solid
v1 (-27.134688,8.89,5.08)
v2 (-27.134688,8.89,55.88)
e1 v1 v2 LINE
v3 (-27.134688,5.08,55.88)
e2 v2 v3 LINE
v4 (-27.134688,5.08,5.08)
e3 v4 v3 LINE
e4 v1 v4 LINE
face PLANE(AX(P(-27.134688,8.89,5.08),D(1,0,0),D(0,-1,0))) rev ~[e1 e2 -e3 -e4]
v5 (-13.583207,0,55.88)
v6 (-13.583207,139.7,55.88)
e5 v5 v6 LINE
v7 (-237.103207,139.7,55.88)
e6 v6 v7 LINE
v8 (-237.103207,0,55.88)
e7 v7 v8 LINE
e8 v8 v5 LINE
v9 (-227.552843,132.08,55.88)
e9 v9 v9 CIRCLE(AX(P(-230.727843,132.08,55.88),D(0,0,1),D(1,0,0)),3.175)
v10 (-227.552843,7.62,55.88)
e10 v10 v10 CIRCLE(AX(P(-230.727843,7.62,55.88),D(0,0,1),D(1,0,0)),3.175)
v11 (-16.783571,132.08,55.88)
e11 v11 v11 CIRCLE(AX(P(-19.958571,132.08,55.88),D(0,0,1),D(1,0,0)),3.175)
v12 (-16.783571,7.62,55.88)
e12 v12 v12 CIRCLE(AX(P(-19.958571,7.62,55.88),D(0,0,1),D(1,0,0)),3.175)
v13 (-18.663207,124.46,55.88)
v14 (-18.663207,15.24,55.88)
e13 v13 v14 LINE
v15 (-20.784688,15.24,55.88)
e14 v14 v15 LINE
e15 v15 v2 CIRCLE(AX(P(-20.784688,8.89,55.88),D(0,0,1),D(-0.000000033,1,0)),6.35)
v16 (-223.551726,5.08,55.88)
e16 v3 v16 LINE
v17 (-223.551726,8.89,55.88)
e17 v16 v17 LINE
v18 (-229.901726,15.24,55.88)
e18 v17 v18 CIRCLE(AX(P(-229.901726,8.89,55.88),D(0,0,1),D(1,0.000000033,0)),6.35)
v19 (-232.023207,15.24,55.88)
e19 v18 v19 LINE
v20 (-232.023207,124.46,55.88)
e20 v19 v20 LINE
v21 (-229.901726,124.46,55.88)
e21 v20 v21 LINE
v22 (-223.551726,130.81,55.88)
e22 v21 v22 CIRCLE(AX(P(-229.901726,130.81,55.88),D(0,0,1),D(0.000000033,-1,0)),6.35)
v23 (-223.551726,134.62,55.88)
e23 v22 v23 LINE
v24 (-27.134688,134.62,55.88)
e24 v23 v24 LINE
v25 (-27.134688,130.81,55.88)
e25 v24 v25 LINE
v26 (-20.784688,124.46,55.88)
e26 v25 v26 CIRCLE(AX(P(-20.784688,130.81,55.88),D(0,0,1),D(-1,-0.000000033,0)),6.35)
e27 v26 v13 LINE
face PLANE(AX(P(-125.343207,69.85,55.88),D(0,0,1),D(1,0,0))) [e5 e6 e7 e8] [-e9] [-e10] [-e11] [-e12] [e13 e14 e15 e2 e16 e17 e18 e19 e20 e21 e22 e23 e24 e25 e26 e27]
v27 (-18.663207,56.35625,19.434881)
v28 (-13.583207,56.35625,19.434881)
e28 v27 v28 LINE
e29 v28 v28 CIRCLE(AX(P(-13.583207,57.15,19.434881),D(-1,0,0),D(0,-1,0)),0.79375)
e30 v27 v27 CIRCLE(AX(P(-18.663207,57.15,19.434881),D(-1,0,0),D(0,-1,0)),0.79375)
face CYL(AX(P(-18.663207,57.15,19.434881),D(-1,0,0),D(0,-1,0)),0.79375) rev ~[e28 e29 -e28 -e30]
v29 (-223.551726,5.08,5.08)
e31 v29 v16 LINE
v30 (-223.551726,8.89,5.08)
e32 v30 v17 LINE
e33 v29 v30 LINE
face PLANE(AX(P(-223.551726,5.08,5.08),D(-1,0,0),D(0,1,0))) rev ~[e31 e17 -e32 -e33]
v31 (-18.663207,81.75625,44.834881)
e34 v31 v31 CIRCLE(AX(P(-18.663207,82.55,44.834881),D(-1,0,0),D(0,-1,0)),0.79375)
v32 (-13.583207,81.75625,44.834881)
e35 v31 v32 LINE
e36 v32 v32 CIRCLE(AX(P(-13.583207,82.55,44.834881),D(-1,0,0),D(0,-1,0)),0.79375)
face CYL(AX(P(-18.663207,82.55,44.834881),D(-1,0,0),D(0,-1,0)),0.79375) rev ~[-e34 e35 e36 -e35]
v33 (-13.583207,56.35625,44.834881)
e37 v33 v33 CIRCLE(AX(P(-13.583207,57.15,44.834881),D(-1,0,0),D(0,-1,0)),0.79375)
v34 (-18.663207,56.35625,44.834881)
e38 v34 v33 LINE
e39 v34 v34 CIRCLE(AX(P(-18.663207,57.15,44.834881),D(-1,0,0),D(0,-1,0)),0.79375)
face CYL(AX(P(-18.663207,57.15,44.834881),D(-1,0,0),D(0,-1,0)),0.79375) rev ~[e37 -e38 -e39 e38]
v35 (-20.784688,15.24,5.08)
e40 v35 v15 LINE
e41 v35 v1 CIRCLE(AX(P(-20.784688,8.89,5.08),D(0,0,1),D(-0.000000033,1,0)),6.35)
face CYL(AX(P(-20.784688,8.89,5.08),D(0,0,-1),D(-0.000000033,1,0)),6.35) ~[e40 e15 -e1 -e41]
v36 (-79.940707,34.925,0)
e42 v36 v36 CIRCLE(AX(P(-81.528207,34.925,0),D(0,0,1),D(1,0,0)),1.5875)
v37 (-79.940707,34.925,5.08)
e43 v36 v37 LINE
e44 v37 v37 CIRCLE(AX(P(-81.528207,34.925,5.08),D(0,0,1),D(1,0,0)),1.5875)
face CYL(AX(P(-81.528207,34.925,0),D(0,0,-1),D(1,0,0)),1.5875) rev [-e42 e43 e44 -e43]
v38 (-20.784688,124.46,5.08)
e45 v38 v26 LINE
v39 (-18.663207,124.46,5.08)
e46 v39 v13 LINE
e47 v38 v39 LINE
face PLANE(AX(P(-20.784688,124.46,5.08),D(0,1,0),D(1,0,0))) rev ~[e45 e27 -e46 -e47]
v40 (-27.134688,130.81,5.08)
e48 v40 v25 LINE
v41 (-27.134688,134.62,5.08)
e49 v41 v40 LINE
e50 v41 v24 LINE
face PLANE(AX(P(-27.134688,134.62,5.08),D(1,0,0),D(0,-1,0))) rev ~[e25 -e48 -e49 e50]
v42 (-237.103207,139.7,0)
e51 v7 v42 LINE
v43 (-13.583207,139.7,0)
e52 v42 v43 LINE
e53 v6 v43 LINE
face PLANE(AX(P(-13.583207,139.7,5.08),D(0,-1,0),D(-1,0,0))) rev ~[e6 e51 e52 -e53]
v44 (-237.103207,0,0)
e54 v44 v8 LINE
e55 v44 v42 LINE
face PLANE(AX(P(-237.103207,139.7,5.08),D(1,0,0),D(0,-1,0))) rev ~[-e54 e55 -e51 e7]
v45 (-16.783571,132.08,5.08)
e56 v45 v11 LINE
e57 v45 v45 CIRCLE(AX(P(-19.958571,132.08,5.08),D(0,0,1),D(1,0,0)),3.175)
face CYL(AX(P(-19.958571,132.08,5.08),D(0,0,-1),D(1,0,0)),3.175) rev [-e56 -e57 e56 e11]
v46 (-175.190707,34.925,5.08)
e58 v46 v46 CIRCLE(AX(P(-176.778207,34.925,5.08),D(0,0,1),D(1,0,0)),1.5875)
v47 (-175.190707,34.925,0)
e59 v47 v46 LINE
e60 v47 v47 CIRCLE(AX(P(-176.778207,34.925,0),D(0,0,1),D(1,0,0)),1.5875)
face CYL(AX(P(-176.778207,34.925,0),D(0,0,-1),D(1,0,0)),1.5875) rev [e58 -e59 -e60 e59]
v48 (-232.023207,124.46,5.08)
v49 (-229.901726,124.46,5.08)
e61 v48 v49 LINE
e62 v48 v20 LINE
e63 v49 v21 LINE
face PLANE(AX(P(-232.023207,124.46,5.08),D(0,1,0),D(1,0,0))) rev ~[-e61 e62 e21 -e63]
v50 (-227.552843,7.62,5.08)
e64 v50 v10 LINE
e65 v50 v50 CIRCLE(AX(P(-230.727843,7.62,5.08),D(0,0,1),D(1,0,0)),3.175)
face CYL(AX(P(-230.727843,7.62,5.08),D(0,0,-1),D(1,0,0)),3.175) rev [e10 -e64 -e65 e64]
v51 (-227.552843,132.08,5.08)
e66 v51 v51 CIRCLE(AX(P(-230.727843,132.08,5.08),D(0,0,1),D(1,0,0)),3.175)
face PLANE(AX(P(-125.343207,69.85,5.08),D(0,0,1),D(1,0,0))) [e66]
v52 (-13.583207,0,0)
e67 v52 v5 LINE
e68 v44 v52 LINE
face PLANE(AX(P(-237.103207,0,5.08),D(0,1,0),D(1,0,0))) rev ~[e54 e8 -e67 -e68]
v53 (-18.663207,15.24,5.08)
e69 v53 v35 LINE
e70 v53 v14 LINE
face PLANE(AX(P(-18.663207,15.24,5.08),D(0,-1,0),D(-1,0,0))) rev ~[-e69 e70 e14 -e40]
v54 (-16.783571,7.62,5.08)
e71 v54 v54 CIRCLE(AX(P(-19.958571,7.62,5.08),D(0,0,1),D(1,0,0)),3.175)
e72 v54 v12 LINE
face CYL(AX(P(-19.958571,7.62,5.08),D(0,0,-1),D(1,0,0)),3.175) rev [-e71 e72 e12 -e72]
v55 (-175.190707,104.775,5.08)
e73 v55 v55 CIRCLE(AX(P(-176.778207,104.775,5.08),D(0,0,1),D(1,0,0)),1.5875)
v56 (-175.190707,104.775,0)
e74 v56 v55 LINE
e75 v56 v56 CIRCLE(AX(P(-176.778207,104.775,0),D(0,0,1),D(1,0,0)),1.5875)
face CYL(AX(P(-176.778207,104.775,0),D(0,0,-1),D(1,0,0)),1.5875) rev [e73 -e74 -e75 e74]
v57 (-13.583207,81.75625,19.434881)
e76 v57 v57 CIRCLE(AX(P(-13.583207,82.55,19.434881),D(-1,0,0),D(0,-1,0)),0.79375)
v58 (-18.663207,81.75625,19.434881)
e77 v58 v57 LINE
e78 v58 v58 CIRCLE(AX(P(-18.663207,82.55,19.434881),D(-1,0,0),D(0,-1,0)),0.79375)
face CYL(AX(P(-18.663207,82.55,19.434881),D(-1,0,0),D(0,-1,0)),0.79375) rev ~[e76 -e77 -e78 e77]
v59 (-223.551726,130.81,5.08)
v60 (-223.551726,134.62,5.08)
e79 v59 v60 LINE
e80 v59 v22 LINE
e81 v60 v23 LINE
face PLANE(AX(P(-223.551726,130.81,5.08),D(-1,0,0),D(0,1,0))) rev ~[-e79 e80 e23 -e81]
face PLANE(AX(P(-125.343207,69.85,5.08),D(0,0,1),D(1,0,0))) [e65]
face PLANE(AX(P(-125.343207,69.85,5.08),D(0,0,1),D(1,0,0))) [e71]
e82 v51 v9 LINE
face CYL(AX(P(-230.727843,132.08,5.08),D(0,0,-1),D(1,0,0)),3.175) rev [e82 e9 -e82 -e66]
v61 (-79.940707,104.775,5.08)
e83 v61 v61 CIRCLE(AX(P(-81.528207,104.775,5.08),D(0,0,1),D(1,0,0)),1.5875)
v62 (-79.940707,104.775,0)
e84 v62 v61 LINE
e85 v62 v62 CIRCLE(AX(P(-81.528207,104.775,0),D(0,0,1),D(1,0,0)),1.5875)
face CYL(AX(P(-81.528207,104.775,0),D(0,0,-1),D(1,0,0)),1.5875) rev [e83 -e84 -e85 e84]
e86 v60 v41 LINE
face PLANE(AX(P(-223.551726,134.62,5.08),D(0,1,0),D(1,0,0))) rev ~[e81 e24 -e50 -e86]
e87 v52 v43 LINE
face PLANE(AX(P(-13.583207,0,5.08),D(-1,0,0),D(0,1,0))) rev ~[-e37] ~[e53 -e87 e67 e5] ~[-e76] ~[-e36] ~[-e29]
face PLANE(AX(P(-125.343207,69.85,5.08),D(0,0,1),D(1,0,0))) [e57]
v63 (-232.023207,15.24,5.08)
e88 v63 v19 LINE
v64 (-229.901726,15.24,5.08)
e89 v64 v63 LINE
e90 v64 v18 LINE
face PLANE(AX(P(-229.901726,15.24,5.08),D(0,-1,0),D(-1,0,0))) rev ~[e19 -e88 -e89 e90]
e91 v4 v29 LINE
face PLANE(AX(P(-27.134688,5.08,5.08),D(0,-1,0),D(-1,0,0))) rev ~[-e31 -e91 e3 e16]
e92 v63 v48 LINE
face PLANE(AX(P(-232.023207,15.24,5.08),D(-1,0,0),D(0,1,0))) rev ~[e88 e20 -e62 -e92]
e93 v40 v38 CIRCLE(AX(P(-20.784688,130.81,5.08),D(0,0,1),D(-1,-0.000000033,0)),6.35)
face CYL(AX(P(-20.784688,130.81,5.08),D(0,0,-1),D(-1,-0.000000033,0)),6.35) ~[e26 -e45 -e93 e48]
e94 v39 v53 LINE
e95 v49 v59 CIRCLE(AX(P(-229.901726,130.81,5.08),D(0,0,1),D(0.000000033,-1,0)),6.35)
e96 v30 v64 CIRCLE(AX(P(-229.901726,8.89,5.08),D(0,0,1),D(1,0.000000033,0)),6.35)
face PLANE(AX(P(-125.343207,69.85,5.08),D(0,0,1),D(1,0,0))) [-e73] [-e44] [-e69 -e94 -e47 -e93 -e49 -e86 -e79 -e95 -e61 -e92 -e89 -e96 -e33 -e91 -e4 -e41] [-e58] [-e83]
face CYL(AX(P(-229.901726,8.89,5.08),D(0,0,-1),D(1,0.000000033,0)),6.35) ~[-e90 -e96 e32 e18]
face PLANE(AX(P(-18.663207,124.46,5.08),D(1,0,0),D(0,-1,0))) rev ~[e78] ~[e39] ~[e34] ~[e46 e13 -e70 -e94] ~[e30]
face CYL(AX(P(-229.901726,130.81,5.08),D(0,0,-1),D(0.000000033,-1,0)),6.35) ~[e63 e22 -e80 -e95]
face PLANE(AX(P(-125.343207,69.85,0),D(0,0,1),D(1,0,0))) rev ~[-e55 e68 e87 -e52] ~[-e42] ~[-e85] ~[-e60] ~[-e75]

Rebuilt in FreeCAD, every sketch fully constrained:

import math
import FreeCAD as App
import Part
import Sketcher
Q = App.Units.Quantity


def add_polygon(sketch, points):
    """Adds a closed chain of lines whose ends are joined by coincident constraints."""
    first, n = sketch.GeometryCount, len(points)
    for a, b in zip(points, points[1:] + points[:1]):
        sketch.addGeometry(Part.LineSegment(App.Vector(*a, 0), App.Vector(*b, 0)), False)
    for i in range(n):
        sketch.addConstraint(Sketcher.Constraint("Coincident", first + i, 2, first + (i + 1) % n, 1))

doc = App.newDocument("Part")
body = doc.addObject("PartDesign::Body", "Body")

sketch1 = body.newObject("Sketcher::SketchObject", "Sketch")
sketch1.AttachmentSupport = (doc.getObject("XY_Plane"), [""])
sketch1.MapMode = "FlatFace"
add_polygon(sketch1, [(-237.103207, 139.7), (-237.103207, 0), (-13.583207, 0), (-13.583207, 139.7)])
sketch1.addGeometry(Part.Circle(App.Vector(-176.778207, 34.925, 0), App.Vector(0, 0, 1), 1.5875), False)
sketch1.addGeometry(Part.Circle(App.Vector(-81.528207, 34.925, 0), App.Vector(0, 0, 1), 1.5875), False)
sketch1.addGeometry(Part.Circle(App.Vector(-176.778207, 104.775, 0), App.Vector(0, 0, 1), 1.5875), False)
sketch1.addGeometry(Part.Circle(App.Vector(-81.528207, 104.775, 0), App.Vector(0, 0, 1), 1.5875), False)
sketch1.addConstraint([
    Sketcher.Constraint("Vertical", 0),
    Sketcher.Constraint("Horizontal", 1),
    Sketcher.Constraint("Vertical", 2),
    Sketcher.Constraint("Horizontal", 3),
    Sketcher.Constraint("Equal", 4, 5),
    Sketcher.Constraint("Equal", 5, 6),
    Sketcher.Constraint("Equal", 6, 7),
    Sketcher.Constraint("PointOnObject", 0, 2, -1),
    Sketcher.Constraint("Horizontal", 4, 3, 5, 3),
    Sketcher.Constraint("Horizontal", 6, 3, 7, 3),
    Sketcher.Constraint("Vertical", 4, 3, 6, 3),
    Sketcher.Constraint("Vertical", 5, 3, 7, 3),
    Sketcher.Constraint("Diameter", 4, Q("0.125 in")),
    Sketcher.Constraint("DistanceX", 1, 1, 1, 2, Q("8.8 in")),
    Sketcher.Constraint("DistanceY", 0, 2, 0, 1, Q("5.5 in")),
    Sketcher.Constraint("DistanceX", 4, 3, 5, 3, Q("3.75 in")),
    Sketcher.Constraint("DistanceY", 4, 3, 6, 3, Q("2.75 in")),
    Sketcher.Constraint("DistanceY", -1, 1, 4, 3, Q("1.375 in")),
    Sketcher.Constraint("DistanceX", 0, 2, 4, 3, Q("2.375 in")),
    Sketcher.Constraint("DistanceX", 4, 3, -1, 1, 176.778207),
])
pad1 = body.newObject("PartDesign::Pad", "Pad")
pad1.Profile = sketch1
pad1.Length = Q("0.2 in")

sketch2 = body.newObject("Sketcher::SketchObject", "Sketch001")
sketch2.AttachmentSupport = (doc.getObject("XY_Plane"), [""])
sketch2.MapMode = "FlatFace"
sketch2.AttachmentOffset = App.Placement(App.Vector(0, 0, 0.2 * 25.4), App.Rotation())
add_polygon(sketch2, [(-237.103207, 139.7), (-237.103207, 0), (-13.583207, 0), (-13.583207, 139.7)])
sketch2.addGeometry(Part.Circle(App.Vector(-230.727843, 7.62, 0), App.Vector(0, 0, 1), 3.175), False)
sketch2.addGeometry(Part.Circle(App.Vector(-19.958571, 7.62, 0), App.Vector(0, 0, 1), 3.175), False)
sketch2.addGeometry(Part.Circle(App.Vector(-230.727843, 132.08, 0), App.Vector(0, 0, 1), 3.175), False)
sketch2.addGeometry(Part.LineSegment(App.Vector(-229.901726, 15.24, 0), App.Vector(-232.023207, 15.24, 0)), False)
sketch2.addGeometry(Part.LineSegment(App.Vector(-232.023207, 15.24, 0), App.Vector(-232.023207, 124.46, 0)), False)
sketch2.addGeometry(Part.LineSegment(App.Vector(-232.023207, 124.46, 0), App.Vector(-229.901726, 124.46, 0)), False)
sketch2.addGeometry(Part.ArcOfCircle(Part.Circle(App.Vector(-229.901726, 130.81, 0), App.Vector(0, 0, 1), 6.35), math.radians(-89.999998), math.radians(-0.000002)), False)
sketch2.addGeometry(Part.LineSegment(App.Vector(-223.551726, 130.81, 0), App.Vector(-223.551726, 134.62, 0)), False)
sketch2.addGeometry(Part.LineSegment(App.Vector(-223.551726, 134.62, 0), App.Vector(-27.134688, 134.62, 0)), False)
sketch2.addGeometry(Part.LineSegment(App.Vector(-27.134688, 134.62, 0), App.Vector(-27.134688, 130.81, 0)), False)
sketch2.addGeometry(Part.ArcOfCircle(Part.Circle(App.Vector(-20.784688, 130.81, 0), App.Vector(0, 0, 1), 6.35), math.radians(-179.999998), math.radians(-90.000002)), False)
sketch2.addGeometry(Part.LineSegment(App.Vector(-20.784688, 124.46, 0), App.Vector(-18.663207, 124.46, 0)), False)
sketch2.addGeometry(Part.LineSegment(App.Vector(-18.663207, 124.46, 0), App.Vector(-18.663207, 15.24, 0)), False)
sketch2.addGeometry(Part.LineSegment(App.Vector(-18.663207, 15.24, 0), App.Vector(-20.784688, 15.24, 0)), False)
sketch2.addGeometry(Part.ArcOfCircle(Part.Circle(App.Vector(-20.784688, 8.89, 0), App.Vector(0, 0, 1), 6.35), math.radians(90.000002), math.radians(179.999998)), False)
sketch2.addGeometry(Part.LineSegment(App.Vector(-27.134688, 8.89, 0), App.Vector(-27.134688, 5.08, 0)), False)
sketch2.addGeometry(Part.LineSegment(App.Vector(-27.134688, 5.08, 0), App.Vector(-223.551726, 5.08, 0)), False)
sketch2.addGeometry(Part.LineSegment(App.Vector(-223.551726, 5.08, 0), App.Vector(-223.551726, 8.89, 0)), False)
sketch2.addGeometry(Part.ArcOfCircle(Part.Circle(App.Vector(-229.901726, 8.89, 0), App.Vector(0, 0, 1), 6.35), math.radians(0.000002), math.radians(89.999998)), False)
sketch2.addGeometry(Part.Circle(App.Vector(-19.958571, 132.08, 0), App.Vector(0, 0, 1), 3.175), False)
sketch2.addConstraint([
    Sketcher.Constraint("Coincident", 7, 2, 8, 1),
    Sketcher.Constraint("Coincident", 8, 2, 9, 1),
    Sketcher.Constraint("Tangent", 9, 2, 10, 1),
    Sketcher.Constraint("Tangent", 10, 2, 11, 1),
    Sketcher.Constraint("Coincident", 11, 2, 12, 1),
    Sketcher.Constraint("Coincident", 12, 2, 13, 1),
    Sketcher.Constraint("Tangent", 13, 2, 14, 1),
    Sketcher.Constraint("Tangent", 14, 2, 15, 1),
    Sketcher.Constraint("Coincident", 15, 2, 16, 1),
    Sketcher.Constraint("Coincident", 16, 2, 17, 1),
    Sketcher.Constraint("Tangent", 17, 2, 18, 1),
    Sketcher.Constraint("Tangent", 18, 2, 19, 1),
    Sketcher.Constraint("Coincident", 19, 2, 20, 1),
    Sketcher.Constraint("Coincident", 20, 2, 21, 1),
    Sketcher.Constraint("Tangent", 21, 2, 22, 1),
    Sketcher.Constraint("Tangent", 22, 2, 7, 1),
    Sketcher.Constraint("Vertical", 0),
    Sketcher.Constraint("Horizontal", 1),
    Sketcher.Constraint("Vertical", 2),
    Sketcher.Constraint("Horizontal", 3),
    Sketcher.Constraint("Horizontal", 7),
    Sketcher.Constraint("Vertical", 8),
    Sketcher.Constraint("Horizontal", 9),
    Sketcher.Constraint("Vertical", 11),
    Sketcher.Constraint("Horizontal", 12),
    Sketcher.Constraint("Vertical", 13),
    Sketcher.Constraint("Horizontal", 15),
    Sketcher.Constraint("Vertical", 16),
    Sketcher.Constraint("Horizontal", 17),
    Sketcher.Constraint("Vertical", 19),
    Sketcher.Constraint("Horizontal", 20),
    Sketcher.Constraint("Vertical", 21),
    Sketcher.Constraint("Equal", 4, 5),
    Sketcher.Constraint("Equal", 5, 6),
    Sketcher.Constraint("Equal", 10, 14),
    Sketcher.Constraint("Equal", 14, 18),
    Sketcher.Constraint("Equal", 18, 22),
    Sketcher.Constraint("Equal", 6, 23),
    Sketcher.Constraint("PointOnObject", 0, 2, -1),
    Sketcher.Constraint("Horizontal", 4, 3, 5, 3),
    Sketcher.Constraint("Horizontal", 10, 3, 14, 3),
    Sketcher.Constraint("Horizontal", 18, 3, 22, 3),
    Sketcher.Constraint("Horizontal", 6, 3, 23, 3),
    Sketcher.Constraint("Vertical", 4, 3, 6, 3),
    Sketcher.Constraint("Vertical", 14, 3, 18, 3),
    Sketcher.Constraint("Vertical", 10, 3, 22, 3),
    Sketcher.Constraint("Vertical", 5, 3, 23, 3),
    Sketcher.Constraint("Equal", 9, 15),
    Sketcher.Constraint("Equal", 13, 19),
    Sketcher.Constraint("Diameter", 4, Q("0.25 in")),
    Sketcher.Constraint("Radius", 10, Q("0.25 in")),
    Sketcher.Constraint("DistanceX", 1, 1, 1, 2, Q("8.8 in")),
    Sketcher.Constraint("DistanceY", 0, 2, 0, 1, Q("5.5 in")),
    Sketcher.Constraint("DistanceY", 8, 1, 8, 2, Q("4.3 in")),
    Sketcher.Constraint("DistanceY", 5, 3, 12, 2, Q("5 in")),
    Sketcher.Constraint("DistanceY", 11, 1, 11, 2, Q("0.15 in")),
    Sketcher.Constraint("DistanceY", -1, 1, 4, 3, Q("0.3 in")),
    Sketcher.Constraint("DistanceY", -1, 1, 6, 3, Q("5.2 in")),
    Sketcher.Constraint("DistanceX", 0, 2, 7, 2, Q("0.2 in")),
    Sketcher.Constraint("DistanceX", 16, 2, 1, 2, Q("0.2 in")),
    Sketcher.Constraint("DistanceX", 7, 2, 7, 1, 2.121481),
    Sketcher.Constraint("DistanceX", 5, 3, -1, 1, 19.958571),
    Sketcher.Constraint("DistanceX", 12, 2, -1, 1, 27.134688),
    Sketcher.Constraint("DistanceX", 4, 3, 5, 3, 210.769272),
])
pad2 = body.newObject("PartDesign::Pad", "Pad001")
pad2.Profile = sketch2
pad2.Length = Q("2 in")

sketch3 = body.newObject("Sketcher::SketchObject", "Sketch002")
sketch3.AttachmentSupport = (doc.getObject("YZ_Plane"), [""])
sketch3.MapMode = "FlatFace"
sketch3.AttachmentOffset = App.Placement(App.Vector(0, 0, -18.663207), App.Rotation())
sketch3.addGeometry([
    Part.Circle(App.Vector(82.55, 44.834881, 0), App.Vector(0, 0, 1), 0.79375),
    Part.Circle(App.Vector(57.15, 44.834881, 0), App.Vector(0, 0, 1), 0.79375),
    Part.Circle(App.Vector(82.55, 19.434881, 0), App.Vector(0, 0, 1), 0.79375),
    Part.Circle(App.Vector(57.15, 19.434881, 0), App.Vector(0, 0, 1), 0.79375),
], False)
sketch3.addConstraint([
    Sketcher.Constraint("Equal", 0, 1),
    Sketcher.Constraint("Equal", 1, 2),
    Sketcher.Constraint("Equal", 2, 3),
    Sketcher.Constraint("Horizontal", 0, 3, 1, 3),
    Sketcher.Constraint("Horizontal", 2, 3, 3, 3),
    Sketcher.Constraint("Vertical", 0, 3, 2, 3),
    Sketcher.Constraint("Vertical", 1, 3, 3, 3),
    Sketcher.Constraint("Diameter", 0, Q("0.0625 in")),
    Sketcher.Constraint("DistanceX", 1, 3, 0, 3, Q("1 in")),
    Sketcher.Constraint("DistanceY", 2, 3, 0, 3, Q("1 in")),
    Sketcher.Constraint("DistanceX", -1, 1, 0, 3, Q("3.25 in")),
    Sketcher.Constraint("DistanceY", -1, 1, 0, 3, 44.834881),
])
pocket1 = body.newObject("PartDesign::Pocket", "Pocket")
pocket1.Profile = sketch3
pocket1.Length = Q("2.03 in")
pocket1.Reversed = True

doc.recompute()
